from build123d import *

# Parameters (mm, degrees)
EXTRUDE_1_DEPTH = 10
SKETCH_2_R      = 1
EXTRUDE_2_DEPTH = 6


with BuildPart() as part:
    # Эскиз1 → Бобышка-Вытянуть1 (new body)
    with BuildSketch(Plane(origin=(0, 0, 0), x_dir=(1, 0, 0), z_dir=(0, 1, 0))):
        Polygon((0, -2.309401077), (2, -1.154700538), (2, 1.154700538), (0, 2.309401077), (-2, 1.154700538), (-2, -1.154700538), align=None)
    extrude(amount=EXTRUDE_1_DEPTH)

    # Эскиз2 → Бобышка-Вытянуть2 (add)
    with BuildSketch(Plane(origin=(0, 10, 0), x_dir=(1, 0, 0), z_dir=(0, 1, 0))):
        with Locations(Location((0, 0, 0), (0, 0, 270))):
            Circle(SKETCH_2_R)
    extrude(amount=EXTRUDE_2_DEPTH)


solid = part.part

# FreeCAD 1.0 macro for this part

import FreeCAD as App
import Part
import Sketcher
Q = App.Units.Quantity


def add_polygon(sketch, points):
    """Adds a closed chain of lines whose ends are joined by coincident constraints."""
    first, n = sketch.GeometryCount, len(points)
    for a, b in zip(points, points[1:] + points[:1]):
        sketch.addGeometry(Part.LineSegment(App.Vector(*a, 0), App.Vector(*b, 0)), False)
    for i in range(n):
        sketch.addConstraint(Sketcher.Constraint("Coincident", first + i, 2, first + (i + 1) % n, 1))

doc = App.newDocument("Part")
body = doc.addObject("PartDesign::Body", "Body")

sketch1 = doc.addObject("Sketcher::SketchObject", "Sketch")
body.addObject(sketch1)
sketch1.AttachmentSupport = (doc.XZ_Plane, [""])
sketch1.MapMode = "FlatFace"
add_polygon(sketch1, [(0, 2.309401), (2, 1.154701), (2, -1.154701), (0, -2.309401), (-2, -1.154701), (-2, 1.154701)])
sketch1.addConstraint([
    Sketcher.Constraint("Vertical", 1),
    Sketcher.Constraint("Vertical", 4),
    Sketcher.Constraint("Symmetric", 0, 2, 3, 2, -1, 1),
    Sketcher.Constraint("Symmetric", 2, 2, 5, 2, -1, 1),
    Sketcher.Constraint("PointOnObject", 2, 2, -2),
    Sketcher.Constraint("Parallel", 2, 5),
    Sketcher.Constraint("Horizontal", 1, 2, 3, 2),
    Sketcher.Constraint("Angle", 0, Q("-30 deg")),
    Sketcher.Constraint("DistanceX", -1, 1, 0, 2, 2.0),
    Sketcher.Constraint("DistanceY", 1, 2, 1, 1, 2.309401),
])
pad1 = doc.addObject("PartDesign::Pad", "Pad")
body.addObject(pad1)
pad1.Profile = sketch1
pad1.Length = 10
pad1.Reversed = True

sketch2 = doc.addObject("Sketcher::SketchObject", "Sketch001")
body.addObject(sketch2)
sketch2.AttachmentSupport = (doc.XZ_Plane, [""])
sketch2.MapMode = "FlatFace"
sketch2.AttachmentOffset = App.Placement(App.Vector(0, 0, -10), App.Rotation())
sketch2.addGeometry(Part.Circle(App.Vector(0, 0, 0), App.Vector(0, 0, 1), 1), False)
sketch2.addConstraint([
    Sketcher.Constraint("Coincident", 0, 3, -1, 1),
    Sketcher.Constraint("Diameter", 0, 2.0),
])
pad2 = doc.addObject("PartDesign::Pad", "Pad001")
body.addObject(pad2)
pad2.Profile = sketch2
pad2.Length = 6
pad2.Reversed = True

doc.recompute()
